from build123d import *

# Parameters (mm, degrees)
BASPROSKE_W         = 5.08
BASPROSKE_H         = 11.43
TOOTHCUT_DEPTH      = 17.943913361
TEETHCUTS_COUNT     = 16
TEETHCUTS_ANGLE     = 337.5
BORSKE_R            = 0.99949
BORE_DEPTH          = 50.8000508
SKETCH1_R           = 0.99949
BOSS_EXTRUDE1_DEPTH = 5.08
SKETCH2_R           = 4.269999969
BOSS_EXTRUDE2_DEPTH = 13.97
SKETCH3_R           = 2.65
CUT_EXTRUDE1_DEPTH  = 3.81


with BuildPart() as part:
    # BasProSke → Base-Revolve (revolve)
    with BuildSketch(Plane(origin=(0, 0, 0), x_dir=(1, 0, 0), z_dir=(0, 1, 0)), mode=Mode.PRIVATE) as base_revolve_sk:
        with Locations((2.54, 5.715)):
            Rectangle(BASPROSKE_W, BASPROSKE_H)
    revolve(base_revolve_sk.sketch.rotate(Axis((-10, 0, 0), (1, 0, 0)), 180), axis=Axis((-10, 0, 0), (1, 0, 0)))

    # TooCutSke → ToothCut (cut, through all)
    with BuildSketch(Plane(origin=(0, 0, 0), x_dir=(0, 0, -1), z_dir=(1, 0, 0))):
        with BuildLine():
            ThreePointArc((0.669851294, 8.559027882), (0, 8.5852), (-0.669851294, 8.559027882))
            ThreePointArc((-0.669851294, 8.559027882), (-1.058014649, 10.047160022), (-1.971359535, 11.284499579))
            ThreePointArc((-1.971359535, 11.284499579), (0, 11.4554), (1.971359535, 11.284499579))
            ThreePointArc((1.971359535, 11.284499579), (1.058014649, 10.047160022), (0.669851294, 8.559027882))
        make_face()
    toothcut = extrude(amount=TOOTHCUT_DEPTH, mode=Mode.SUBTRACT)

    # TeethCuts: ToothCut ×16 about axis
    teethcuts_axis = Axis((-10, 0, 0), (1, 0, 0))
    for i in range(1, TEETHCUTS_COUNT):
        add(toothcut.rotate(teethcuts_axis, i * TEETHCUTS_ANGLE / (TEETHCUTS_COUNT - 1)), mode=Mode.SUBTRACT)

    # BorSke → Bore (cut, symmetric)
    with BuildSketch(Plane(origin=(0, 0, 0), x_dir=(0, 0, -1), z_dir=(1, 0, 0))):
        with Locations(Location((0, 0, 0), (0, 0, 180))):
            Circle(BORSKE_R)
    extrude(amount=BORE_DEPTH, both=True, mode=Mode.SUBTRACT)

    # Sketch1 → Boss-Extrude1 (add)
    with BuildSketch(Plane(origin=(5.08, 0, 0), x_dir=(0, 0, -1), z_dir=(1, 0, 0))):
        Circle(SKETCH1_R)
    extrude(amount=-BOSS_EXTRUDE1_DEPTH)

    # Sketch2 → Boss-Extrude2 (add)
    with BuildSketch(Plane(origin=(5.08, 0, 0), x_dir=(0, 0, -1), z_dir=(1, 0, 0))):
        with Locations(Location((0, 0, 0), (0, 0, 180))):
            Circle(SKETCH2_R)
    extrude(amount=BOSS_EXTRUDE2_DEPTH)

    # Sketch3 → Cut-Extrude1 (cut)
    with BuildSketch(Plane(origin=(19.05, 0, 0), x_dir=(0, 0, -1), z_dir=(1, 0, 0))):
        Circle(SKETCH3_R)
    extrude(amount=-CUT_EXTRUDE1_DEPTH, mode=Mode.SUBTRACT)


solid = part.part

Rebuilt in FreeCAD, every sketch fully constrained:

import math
import FreeCAD as App
import Part
import Sketcher
from FreeCAD import Vector
Q = App.Units.Quantity


def add_polygon(sketch, points):
    """Adds a closed chain of lines whose ends are joined by coincident constraints."""
    first, n = sketch.GeometryCount, len(points)
    for a, b in zip(points, points[1:] + points[:1]):
        sketch.addGeometry(Part.LineSegment(App.Vector(*a, 0), App.Vector(*b, 0)), False)
    for i in range(n):
        sketch.addConstraint(Sketcher.Constraint("Coincident", first + i, 2, first + (i + 1) % n, 1))

doc = App.newDocument("Part")
params = doc.addObject("Spreadsheet::Sheet", "Params")
for row, (alias, value) in enumerate([
    ("sketch1_width", "0.2 in"),
    ("sketch1_height", "0.45 in"),
    ("revolution_angle", "360 deg"),
    ("sketch2_radius", "0.16 in"),
    ("sketch2_radius2", "0.338 in"),
    ("sketch2_radius3", "0.451 in"),
    ("pocket2_length", "101.600102 mm"),
    ("pad1_length", "0.2 in"),
    ("pad2_length", "0.55 in"),
    ("pocket3_length", "0.15 in"),
], start=1):
    params.set(f"A{row}", alias)
    params.set(f"B{row}", "=" + value)
    params.setAlias(f"B{row}", alias)

body = doc.addObject("PartDesign::Body", "Body")

# Sketch on XZ plane
sketch1 = doc.addObject("Sketcher::SketchObject", "Sketch")
body.addObject(sketch1)
sketch1.AttachmentSupport = (doc.XZ_Plane, [""])
sketch1.MapMode = "FlatFace"
add_polygon(sketch1, [(0, -11), (0, 0), (5, 0), (5, -11)])  # lines 0-3
sketch1.addConstraint([
    Sketcher.Constraint("Vertical", 0),
    Sketcher.Constraint("Horizontal", 1),
    Sketcher.Constraint("Vertical", 2),
    Sketcher.Constraint("Horizontal", 3),
    Sketcher.Constraint("Coincident", 0, 2, -1, 1),
    Sketcher.Constraint("DistanceX", 1, 1, 1, 2, Q("0.2 in")),
    Sketcher.Constraint("DistanceY", 0, 1, 0, 2, Q("0.45 in")),
])
sketch1.setExpression("Constraints[9]", "Params.sketch1_width")
sketch1.setExpression("Constraints[10]", "Params.sketch1_height")
revolution = doc.addObject("PartDesign::Revolution", "Revolution")
body.addObject(revolution)
revolution.Profile = sketch1
revolution.ReferenceAxis = (sketch1, ["H_Axis"])
revolution.setExpression("Angle", "Params.revolution_angle")

# Sketch on YZ plane
sketch2 = doc.addObject("Sketcher::SketchObject", "Sketch001")
body.addObject(sketch2)
sketch2.AttachmentSupport = (doc.YZ_Plane, [""])
sketch2.MapMode = "FlatFace"
sketch2.addGeometry([
    Part.ArcOfCircle(Part.Circle(Vector(0, 0, 0), Vector(0, 0, 1), 8.6), math.radians(-4.47), math.radians(4.47)),
    Part.ArcOfCircle(Part.Circle(Vector(8.3, -4.7, 0), Vector(0, 0, 1), 4.1), math.radians(43), math.radians(86)),
    Part.ArcOfCircle(Part.Circle(Vector(0, 0, 0), Vector(0, 0, 1), 11.5), math.radians(-9.91), math.radians(9.91)),
    Part.ArcOfCircle(Part.Circle(Vector(8.3, 4.7, 0), Vector(0, 0, 1), 4.1), math.radians(-86), math.radians(-43)),
], False)
sketch2.addConstraint([
    Sketcher.Constraint("Coincident", 0, 1, 1, 2),
    Sketcher.Constraint("Coincident", 1, 1, 2, 1),
    Sketcher.Constraint("Coincident", 2, 2, 3, 2),
    Sketcher.Constraint("Coincident", 3, 1, 0, 2),
    Sketcher.Constraint("Coincident", 0, 3, -1, 1),
    Sketcher.Constraint("Coincident", 2, 3, -1, 1),
    Sketcher.Constraint("Equal", 1, 3),
    Sketcher.Constraint("Symmetric", 1, 3, 3, 3, -1),
    Sketcher.Constraint("Radius", 1, Q("0.16 in")),
    Sketcher.Constraint("Radius", 0, Q("0.338 in")),
    Sketcher.Constraint("Radius", 2, Q("0.451 in")),
    Sketcher.Constraint("DistanceX", -1, 1, 1, 1, Q("11.2845 mm")),
    Sketcher.Constraint("DistanceX", -1, 1, 1, 3, Q("8.295892 mm")),
])
sketch2.setExpression("Constraints[8]", "Params.sketch2_radius")
sketch2.setExpression("Constraints[9]", "Params.sketch2_radius2")
sketch2.setExpression("Constraints[10]", "Params.sketch2_radius3")
pocket1 = doc.addObject("PartDesign::Pocket", "Pocket")
body.addObject(pocket1)
pocket1.Profile = sketch2
pocket1.Type = "ThroughAll"
pocket1.Reversed = True
doc.recompute()

polarpattern = doc.addObject("PartDesign::PolarPattern", "PolarPattern")
body.addObject(polarpattern)
polarpattern.Originals = [pocket1]
polarpattern.Axis = (doc.X_Axis, [""])
polarpattern.Angle = 360
polarpattern.Occurrences = 16
body.Tip = polarpattern

# Sketch on YZ plane
sketch3 = doc.addObject("Sketcher::SketchObject", "Sketch002")
body.addObject(sketch3)
sketch3.AttachmentSupport = (doc.YZ_Plane, [""])
sketch3.MapMode = "FlatFace"
sketch3.addGeometry(Part.Circle(Vector(0, 0, 0), Vector(0, 0, 1), 1), False)
sketch3.addConstraint([
    Sketcher.Constraint("Coincident", 0, 3, -1, 1),
    Sketcher.Constraint("Diameter", 0, Q("0.0787 in")),
])
pocket2 = doc.addObject("PartDesign::Pocket", "Pocket001")
body.addObject(pocket2)
pocket2.Profile = sketch3
pocket2.setExpression("Length", "Params.pocket2_length")
pocket2.Midplane = True

# Sketch on YZ plane
sketch4 = doc.addObject("Sketcher::SketchObject", "Sketch003")
body.addObject(sketch4)
sketch4.AttachmentSupport = (doc.YZ_Plane, [""])
sketch4.MapMode = "FlatFace"
sketch4.AttachmentOffset = App.Placement(Vector(0, 0, 0.2 * 25.4), App.Rotation())
sketch4.addGeometry(Part.Circle(Vector(0, 0, 0), Vector(0, 0, 1), 1), False)
sketch4.addConstraint([
    Sketcher.Constraint("Coincident", 0, 3, -1, 1),
    Sketcher.Constraint("Diameter", 0, Q("0.0787 in")),
])
pad1 = doc.addObject("PartDesign::Pad", "Pad")
body.addObject(pad1)
pad1.Profile = sketch4
pad1.setExpression("Length", "Params.pad1_length")
pad1.Reversed = True

# Sketch on YZ plane
sketch5 = doc.addObject("Sketcher::SketchObject", "Sketch004")
body.addObject(sketch5)
sketch5.AttachmentSupport = (doc.YZ_Plane, [""])
sketch5.MapMode = "FlatFace"
sketch5.AttachmentOffset = App.Placement(Vector(0, 0, 0.2 * 25.4), App.Rotation())
sketch5.addGeometry(Part.Circle(Vector(0, 0, 0), Vector(0, 0, 1), 4.3), False)
sketch5.addConstraint([
    Sketcher.Constraint("Coincident", 0, 3, -1, 1),
    Sketcher.Constraint("Diameter", 0, Q("8.54 mm")),
])
pad2 = doc.addObject("PartDesign::Pad", "Pad001")
body.addObject(pad2)
pad2.Profile = sketch5
pad2.setExpression("Length", "Params.pad2_length")

# Sketch on YZ plane
sketch6 = doc.addObject("Sketcher::SketchObject", "Sketch005")
body.addObject(sketch6)
sketch6.AttachmentSupport = (doc.YZ_Plane, [""])
sketch6.MapMode = "FlatFace"
sketch6.AttachmentOffset = App.Placement(Vector(0, 0, 0.75 * 25.4), App.Rotation())
sketch6.addGeometry(Part.Circle(Vector(0, 0, 0), Vector(0, 0, 1), 2.6), False)
sketch6.addConstraint([
    Sketcher.Constraint("Coincident", 0, 3, -1, 1),
    Sketcher.Constraint("Diameter", 0, Q("5.3 mm")),
])
pocket3 = doc.addObject("PartDesign::Pocket", "Pocket002")
body.addObject(pocket3)
pocket3.Profile = sketch6
pocket3.setExpression("Length", "Params.pocket3_length")

doc.recompute()
